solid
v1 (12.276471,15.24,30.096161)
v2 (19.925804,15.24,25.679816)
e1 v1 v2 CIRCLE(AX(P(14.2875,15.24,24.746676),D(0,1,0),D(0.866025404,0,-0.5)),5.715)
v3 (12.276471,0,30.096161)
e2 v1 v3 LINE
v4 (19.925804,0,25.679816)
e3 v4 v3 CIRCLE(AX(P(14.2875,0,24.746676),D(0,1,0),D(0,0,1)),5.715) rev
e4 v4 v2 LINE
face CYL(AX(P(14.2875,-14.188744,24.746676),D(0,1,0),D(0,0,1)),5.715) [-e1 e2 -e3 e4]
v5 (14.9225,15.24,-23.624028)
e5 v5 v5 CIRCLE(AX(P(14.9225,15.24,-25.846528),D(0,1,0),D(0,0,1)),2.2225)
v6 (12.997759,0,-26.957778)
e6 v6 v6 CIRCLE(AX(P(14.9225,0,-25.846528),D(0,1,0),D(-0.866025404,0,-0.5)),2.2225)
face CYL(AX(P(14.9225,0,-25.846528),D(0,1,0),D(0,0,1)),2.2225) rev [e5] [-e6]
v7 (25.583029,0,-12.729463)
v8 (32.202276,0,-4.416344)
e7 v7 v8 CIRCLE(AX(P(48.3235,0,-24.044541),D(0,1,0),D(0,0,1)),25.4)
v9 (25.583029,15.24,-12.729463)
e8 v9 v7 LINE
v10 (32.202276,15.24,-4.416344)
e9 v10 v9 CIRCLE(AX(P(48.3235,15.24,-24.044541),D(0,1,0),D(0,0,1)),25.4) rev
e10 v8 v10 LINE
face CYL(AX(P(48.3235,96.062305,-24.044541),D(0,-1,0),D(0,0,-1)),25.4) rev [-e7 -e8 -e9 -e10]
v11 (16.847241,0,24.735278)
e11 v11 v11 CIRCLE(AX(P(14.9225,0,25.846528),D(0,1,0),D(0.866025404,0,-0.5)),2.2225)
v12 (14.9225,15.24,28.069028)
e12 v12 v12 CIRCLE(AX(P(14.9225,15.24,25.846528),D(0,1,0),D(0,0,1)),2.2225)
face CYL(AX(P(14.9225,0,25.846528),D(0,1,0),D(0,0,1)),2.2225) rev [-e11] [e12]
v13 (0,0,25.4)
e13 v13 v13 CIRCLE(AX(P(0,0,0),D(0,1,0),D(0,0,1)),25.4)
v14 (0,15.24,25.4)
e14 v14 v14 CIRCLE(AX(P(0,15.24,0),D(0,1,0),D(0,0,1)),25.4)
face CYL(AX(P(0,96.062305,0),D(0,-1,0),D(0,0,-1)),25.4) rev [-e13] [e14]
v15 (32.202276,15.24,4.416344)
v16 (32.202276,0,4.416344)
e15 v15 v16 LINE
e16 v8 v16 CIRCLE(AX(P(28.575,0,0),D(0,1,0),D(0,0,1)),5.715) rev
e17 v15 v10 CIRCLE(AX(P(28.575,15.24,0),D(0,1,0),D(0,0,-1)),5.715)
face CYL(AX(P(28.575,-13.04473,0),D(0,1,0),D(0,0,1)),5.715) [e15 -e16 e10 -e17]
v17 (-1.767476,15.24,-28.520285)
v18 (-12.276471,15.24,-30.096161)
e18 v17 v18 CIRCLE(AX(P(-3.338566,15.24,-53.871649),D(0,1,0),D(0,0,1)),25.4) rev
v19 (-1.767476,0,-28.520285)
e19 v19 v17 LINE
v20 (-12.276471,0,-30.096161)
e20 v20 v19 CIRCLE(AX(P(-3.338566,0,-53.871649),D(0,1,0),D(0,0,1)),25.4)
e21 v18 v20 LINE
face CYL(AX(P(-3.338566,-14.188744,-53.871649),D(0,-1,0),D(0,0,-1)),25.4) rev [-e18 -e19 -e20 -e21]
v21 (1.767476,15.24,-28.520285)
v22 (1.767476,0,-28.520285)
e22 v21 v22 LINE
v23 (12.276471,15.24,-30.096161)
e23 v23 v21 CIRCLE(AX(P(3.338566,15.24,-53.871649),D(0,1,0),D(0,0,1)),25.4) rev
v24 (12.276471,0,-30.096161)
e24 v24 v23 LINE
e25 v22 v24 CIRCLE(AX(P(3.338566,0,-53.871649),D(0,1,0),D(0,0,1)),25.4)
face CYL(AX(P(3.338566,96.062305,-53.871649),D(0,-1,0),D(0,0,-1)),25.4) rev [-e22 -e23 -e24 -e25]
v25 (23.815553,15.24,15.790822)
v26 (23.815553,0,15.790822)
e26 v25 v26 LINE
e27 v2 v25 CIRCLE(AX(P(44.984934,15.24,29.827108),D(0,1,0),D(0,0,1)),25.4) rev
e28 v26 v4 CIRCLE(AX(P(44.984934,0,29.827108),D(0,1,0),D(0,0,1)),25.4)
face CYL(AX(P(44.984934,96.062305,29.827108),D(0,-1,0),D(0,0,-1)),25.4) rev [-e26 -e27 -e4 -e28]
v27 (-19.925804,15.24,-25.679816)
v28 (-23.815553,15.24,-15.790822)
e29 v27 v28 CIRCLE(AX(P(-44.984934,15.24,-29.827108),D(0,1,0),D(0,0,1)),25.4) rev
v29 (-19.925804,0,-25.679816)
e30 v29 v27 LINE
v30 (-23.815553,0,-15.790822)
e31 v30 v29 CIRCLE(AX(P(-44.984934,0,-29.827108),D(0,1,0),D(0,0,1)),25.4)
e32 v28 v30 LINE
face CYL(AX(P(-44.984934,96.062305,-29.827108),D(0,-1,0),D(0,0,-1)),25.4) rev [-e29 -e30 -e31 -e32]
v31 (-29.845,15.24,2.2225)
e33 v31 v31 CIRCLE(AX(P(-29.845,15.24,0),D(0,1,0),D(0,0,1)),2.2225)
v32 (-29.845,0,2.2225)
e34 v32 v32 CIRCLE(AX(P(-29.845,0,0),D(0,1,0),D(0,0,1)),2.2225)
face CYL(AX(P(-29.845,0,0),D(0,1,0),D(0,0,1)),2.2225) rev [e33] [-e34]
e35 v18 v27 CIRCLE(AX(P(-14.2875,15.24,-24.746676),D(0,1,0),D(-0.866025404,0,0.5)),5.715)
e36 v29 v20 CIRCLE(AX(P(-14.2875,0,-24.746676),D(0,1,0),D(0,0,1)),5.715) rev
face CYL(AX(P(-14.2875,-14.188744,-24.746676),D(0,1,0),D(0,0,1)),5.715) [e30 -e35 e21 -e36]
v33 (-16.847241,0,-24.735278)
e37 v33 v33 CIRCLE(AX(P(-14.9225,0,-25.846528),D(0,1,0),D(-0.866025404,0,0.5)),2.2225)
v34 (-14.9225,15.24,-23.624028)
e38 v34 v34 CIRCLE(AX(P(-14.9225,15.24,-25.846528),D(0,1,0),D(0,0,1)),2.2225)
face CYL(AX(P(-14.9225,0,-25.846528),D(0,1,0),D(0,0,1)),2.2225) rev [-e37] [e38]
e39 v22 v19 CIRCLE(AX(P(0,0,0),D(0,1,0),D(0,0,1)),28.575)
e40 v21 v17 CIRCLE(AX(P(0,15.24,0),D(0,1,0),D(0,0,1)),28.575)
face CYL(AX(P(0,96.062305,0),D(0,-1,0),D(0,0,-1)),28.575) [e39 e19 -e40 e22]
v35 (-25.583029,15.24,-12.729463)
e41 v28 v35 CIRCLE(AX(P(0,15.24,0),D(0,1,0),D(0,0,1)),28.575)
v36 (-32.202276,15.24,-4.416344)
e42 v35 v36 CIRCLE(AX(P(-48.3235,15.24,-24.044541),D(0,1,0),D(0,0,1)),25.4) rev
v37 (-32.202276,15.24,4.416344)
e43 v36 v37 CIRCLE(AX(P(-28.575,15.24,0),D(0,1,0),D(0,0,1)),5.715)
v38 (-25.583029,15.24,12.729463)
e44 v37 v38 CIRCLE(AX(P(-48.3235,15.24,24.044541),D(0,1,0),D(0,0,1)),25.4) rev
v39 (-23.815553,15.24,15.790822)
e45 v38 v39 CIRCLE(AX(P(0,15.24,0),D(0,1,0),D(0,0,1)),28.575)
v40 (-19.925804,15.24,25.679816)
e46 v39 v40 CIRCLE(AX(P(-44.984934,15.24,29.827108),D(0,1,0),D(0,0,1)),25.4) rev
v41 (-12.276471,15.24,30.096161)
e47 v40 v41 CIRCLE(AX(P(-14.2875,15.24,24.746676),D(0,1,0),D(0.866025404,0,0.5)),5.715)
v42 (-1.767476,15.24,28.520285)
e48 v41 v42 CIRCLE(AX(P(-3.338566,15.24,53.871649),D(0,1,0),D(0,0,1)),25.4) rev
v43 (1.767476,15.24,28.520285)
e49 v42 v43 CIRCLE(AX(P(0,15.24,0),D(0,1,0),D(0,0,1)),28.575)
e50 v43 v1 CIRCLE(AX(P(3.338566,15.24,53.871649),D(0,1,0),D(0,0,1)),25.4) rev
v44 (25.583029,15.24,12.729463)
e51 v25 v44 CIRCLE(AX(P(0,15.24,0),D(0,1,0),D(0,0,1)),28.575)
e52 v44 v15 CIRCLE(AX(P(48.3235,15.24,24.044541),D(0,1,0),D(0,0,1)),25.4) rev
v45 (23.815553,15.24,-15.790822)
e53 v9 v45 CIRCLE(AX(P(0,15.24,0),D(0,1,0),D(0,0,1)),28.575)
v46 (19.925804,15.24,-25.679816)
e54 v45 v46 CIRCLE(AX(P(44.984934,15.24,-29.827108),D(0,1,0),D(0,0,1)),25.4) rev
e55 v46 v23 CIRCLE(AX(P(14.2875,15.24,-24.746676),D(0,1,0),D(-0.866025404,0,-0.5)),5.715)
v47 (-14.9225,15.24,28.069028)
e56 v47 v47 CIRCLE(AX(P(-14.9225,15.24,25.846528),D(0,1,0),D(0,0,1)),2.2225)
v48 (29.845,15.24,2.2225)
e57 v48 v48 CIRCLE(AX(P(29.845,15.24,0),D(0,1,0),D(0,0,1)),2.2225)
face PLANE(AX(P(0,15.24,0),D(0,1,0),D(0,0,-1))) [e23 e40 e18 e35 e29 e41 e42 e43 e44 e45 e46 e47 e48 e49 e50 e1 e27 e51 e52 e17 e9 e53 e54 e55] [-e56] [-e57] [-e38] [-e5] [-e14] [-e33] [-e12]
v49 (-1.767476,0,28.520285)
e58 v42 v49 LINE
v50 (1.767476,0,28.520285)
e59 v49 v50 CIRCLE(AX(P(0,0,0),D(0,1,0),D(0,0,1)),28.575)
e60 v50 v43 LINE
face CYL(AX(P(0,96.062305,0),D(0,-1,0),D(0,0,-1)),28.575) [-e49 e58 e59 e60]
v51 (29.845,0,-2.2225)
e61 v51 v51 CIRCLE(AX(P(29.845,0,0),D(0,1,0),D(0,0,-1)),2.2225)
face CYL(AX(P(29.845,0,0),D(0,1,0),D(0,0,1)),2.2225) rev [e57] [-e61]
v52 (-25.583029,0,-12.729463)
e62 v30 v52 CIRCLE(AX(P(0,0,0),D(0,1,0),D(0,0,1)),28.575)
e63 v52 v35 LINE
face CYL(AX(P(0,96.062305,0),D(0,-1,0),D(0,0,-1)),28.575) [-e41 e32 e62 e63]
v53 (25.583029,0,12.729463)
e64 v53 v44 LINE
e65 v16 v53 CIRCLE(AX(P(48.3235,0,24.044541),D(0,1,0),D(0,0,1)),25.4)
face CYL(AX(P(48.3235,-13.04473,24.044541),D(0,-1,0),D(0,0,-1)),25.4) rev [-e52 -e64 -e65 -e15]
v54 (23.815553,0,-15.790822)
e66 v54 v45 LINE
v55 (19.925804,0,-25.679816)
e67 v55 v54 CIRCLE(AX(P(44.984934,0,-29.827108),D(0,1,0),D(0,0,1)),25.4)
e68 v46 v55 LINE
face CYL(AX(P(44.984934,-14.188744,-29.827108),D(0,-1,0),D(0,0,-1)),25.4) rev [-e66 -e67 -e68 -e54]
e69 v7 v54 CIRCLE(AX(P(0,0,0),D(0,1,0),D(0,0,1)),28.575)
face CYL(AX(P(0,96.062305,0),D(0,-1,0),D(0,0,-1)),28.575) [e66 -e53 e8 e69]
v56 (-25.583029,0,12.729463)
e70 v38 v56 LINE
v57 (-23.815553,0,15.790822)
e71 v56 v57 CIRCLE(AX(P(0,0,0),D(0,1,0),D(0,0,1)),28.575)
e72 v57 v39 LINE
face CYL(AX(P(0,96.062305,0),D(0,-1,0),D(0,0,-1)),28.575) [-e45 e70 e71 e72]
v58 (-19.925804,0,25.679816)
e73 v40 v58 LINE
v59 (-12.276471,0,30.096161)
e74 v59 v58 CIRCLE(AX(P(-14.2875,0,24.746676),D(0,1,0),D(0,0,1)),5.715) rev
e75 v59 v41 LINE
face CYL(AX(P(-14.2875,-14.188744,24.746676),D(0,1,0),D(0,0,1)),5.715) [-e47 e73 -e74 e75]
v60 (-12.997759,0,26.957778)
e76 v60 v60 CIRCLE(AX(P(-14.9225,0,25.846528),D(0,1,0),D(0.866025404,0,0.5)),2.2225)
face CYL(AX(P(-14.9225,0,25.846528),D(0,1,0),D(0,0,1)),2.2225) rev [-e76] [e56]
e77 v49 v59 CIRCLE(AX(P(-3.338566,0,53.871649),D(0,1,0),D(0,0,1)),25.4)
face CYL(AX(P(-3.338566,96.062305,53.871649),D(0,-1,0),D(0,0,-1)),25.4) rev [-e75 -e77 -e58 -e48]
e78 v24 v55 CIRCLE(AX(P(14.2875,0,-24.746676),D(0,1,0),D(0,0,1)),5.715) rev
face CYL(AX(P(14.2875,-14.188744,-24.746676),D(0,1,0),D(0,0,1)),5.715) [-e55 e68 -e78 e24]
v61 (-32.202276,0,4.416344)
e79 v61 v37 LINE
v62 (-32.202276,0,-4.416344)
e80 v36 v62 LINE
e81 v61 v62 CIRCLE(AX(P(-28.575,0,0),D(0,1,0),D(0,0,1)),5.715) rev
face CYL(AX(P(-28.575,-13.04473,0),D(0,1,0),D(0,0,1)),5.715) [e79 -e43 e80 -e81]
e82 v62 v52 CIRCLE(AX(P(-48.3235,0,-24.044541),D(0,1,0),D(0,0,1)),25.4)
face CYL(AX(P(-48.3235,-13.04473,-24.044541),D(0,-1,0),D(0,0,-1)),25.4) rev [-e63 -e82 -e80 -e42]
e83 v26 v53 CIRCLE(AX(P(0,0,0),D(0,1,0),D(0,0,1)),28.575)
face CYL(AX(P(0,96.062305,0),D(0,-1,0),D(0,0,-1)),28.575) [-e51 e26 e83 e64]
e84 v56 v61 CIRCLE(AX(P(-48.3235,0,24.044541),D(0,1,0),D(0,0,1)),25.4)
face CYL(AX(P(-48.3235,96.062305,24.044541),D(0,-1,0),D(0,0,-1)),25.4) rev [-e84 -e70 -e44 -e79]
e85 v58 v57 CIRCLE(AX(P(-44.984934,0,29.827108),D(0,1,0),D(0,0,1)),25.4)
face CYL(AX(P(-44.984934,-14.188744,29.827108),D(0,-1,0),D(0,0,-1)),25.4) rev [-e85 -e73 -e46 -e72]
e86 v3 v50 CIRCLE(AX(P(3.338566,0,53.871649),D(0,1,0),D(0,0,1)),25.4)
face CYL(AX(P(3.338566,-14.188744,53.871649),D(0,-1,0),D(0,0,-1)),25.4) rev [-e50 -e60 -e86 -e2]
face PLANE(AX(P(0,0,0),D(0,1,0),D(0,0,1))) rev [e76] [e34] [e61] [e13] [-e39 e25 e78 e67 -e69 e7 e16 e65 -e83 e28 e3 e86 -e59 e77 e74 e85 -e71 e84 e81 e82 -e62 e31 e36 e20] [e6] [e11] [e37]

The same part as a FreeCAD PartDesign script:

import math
import FreeCAD as App
import Part
import Sketcher

V = App.Vector
Q = App.Units.Quantity


def edges_at(feature, points):
    """Names of the edges that pass closest to the given points."""
    edges = feature.Shape.Edges
    near = lambda p: min(range(len(edges)), key=lambda i: edges[i].distToShape(Part.Vertex(*p))[0])
    return sorted({f"Edge{near(p) + 1}" for p in points})

doc = App.newDocument("Part")
body = doc.addObject("PartDesign::Body", "Body")

# Sketch on XZ plane
sketch1 = body.newObject("Sketcher::SketchObject", "Sketch")
sketch1.AttachmentSupport = (doc.getObject("XZ_Plane"), [""])
sketch1.MapMode = "FlatFace"
sketch1.addGeometry([
    Part.Circle(V(0, 0, 0), V(0, 0, 1), 29),
    Part.Circle(V(0, 0, 0), V(0, 0, 1), 25),
], False)
sketch1.addConstraint([
    Sketcher.Constraint("Coincident", 0, 3, -1, 1),
    Sketcher.Constraint("Coincident", 1, 3, -1, 1),
    Sketcher.Constraint("Diameter", 1, Q("2 in")),
    Sketcher.Constraint("Diameter", 0, Q("2.25 in")),
])
pad1 = body.newObject("PartDesign::Pad", "Pad")
pad1.Profile = sketch1
pad1.Length = Q("0.6 in")
pad1.Reversed = True

# Sketch on XZ plane
sketch2 = body.newObject("Sketcher::SketchObject", "Sketch001")
sketch2.AttachmentSupport = (doc.getObject("XZ_Plane"), [""])
sketch2.MapMode = "FlatFace"
sketch2.addGeometry([
    Part.ArcOfCircle(Part.Circle(V(-29, 0, 0), V(0, 0, 1), 6), math.radians(84), math.radians(276)),
    Part.ArcOfCircle(Part.Circle(V(0, 0, 0), V(0, 0, 1), 29), math.radians(169), math.radians(191)),
], False)
sketch2.addConstraint([
    Sketcher.Constraint("Coincident", 0, 1, 1, 1),
    Sketcher.Constraint("Coincident", 1, 2, 0, 2),
    Sketcher.Constraint("Coincident", 1, 3, -1, 1),
    Sketcher.Constraint("PointOnObject", 0, 3, -1),
    Sketcher.Constraint("Radius", 0, Q("0.225 in")),
    Sketcher.Constraint("Radius", 1, Q("1.125 in")),
    Sketcher.Constraint("DistanceX", 0, 3, -1, 1, Q("1.125 in")),
])
pad2 = body.newObject("PartDesign::Pad", "Pad001")
pad2.Profile = sketch2
pad2.Length = Q("0.6 in")
pad2.Reversed = True
doc.recompute()

fillet = body.newObject("PartDesign::Fillet", "Fillet")
fillet.Base = (pad2, edges_at(pad2, [(-28.003, 7.62, -5.686), (-28.003, 7.62, 5.686)]))
fillet.Radius = Q("1 in")
doc.recompute()

polarpattern = body.newObject("PartDesign::PolarPattern", "PolarPattern")
polarpattern.Originals = [pad2]
polarpattern.Axis = (doc.getObject("Y_Axis"), [""])
polarpattern.Angle = 360
polarpattern.Occurrences = 6
body.Tip = polarpattern
doc.recompute()

fillet2 = body.newObject("PartDesign::Fillet", "Fillet001")
fillet2.Base = (polarpattern, edges_at(polarpattern, [
    (-18.926, 7.62, 21.409),
    (-9.077, 7.62, 27.095),
    (9.077, 7.62, 27.095),
    (18.926, 7.62, 21.409),
    (28.003, 7.62, 5.686),
    (28.003, 7.62, -5.686),
    (18.926, 7.62, -21.409),
    (9.077, 7.62, -27.095),
    (-9.077, 7.62, -27.095),
    (-18.926, 7.62, -21.409),
]))
fillet2.Radius = Q("1 in")

# Sketch on XZ plane
sketch3 = body.newObject("Sketcher::SketchObject", "Sketch002")
sketch3.AttachmentSupport = (doc.getObject("XZ_Plane"), [""])
sketch3.MapMode = "FlatFace"
sketch3.AttachmentOffset = App.Placement(V(0, 0, -0.6 * 25.4), App.Rotation())
sketch3.addGeometry(Part.Circle(V(-29.8, 0, 0), V(0, 0, 1), 2.2), False)
sketch3.addConstraint([
    Sketcher.Constraint("PointOnObject", 0, 3, -1),
    Sketcher.Constraint("Diameter", 0, Q("0.175 in")),
    Sketcher.Constraint("DistanceX", 0, 3, -1, 1, Q("1.175 in")),
])
pocket1 = body.newObject("PartDesign::Pocket", "Pocket")
pocket1.Profile = sketch3
pocket1.Length = 98.663859
pocket1.Midplane = True
doc.recompute()

polarpattern2 = body.newObject("PartDesign::PolarPattern", "PolarPattern001")
polarpattern2.Originals = [pocket1]
polarpattern2.Axis = (doc.getObject("Y_Axis"), [""])
polarpattern2.Angle = 360
polarpattern2.Occurrences = 6
body.Tip = polarpattern2

doc.recompute()
